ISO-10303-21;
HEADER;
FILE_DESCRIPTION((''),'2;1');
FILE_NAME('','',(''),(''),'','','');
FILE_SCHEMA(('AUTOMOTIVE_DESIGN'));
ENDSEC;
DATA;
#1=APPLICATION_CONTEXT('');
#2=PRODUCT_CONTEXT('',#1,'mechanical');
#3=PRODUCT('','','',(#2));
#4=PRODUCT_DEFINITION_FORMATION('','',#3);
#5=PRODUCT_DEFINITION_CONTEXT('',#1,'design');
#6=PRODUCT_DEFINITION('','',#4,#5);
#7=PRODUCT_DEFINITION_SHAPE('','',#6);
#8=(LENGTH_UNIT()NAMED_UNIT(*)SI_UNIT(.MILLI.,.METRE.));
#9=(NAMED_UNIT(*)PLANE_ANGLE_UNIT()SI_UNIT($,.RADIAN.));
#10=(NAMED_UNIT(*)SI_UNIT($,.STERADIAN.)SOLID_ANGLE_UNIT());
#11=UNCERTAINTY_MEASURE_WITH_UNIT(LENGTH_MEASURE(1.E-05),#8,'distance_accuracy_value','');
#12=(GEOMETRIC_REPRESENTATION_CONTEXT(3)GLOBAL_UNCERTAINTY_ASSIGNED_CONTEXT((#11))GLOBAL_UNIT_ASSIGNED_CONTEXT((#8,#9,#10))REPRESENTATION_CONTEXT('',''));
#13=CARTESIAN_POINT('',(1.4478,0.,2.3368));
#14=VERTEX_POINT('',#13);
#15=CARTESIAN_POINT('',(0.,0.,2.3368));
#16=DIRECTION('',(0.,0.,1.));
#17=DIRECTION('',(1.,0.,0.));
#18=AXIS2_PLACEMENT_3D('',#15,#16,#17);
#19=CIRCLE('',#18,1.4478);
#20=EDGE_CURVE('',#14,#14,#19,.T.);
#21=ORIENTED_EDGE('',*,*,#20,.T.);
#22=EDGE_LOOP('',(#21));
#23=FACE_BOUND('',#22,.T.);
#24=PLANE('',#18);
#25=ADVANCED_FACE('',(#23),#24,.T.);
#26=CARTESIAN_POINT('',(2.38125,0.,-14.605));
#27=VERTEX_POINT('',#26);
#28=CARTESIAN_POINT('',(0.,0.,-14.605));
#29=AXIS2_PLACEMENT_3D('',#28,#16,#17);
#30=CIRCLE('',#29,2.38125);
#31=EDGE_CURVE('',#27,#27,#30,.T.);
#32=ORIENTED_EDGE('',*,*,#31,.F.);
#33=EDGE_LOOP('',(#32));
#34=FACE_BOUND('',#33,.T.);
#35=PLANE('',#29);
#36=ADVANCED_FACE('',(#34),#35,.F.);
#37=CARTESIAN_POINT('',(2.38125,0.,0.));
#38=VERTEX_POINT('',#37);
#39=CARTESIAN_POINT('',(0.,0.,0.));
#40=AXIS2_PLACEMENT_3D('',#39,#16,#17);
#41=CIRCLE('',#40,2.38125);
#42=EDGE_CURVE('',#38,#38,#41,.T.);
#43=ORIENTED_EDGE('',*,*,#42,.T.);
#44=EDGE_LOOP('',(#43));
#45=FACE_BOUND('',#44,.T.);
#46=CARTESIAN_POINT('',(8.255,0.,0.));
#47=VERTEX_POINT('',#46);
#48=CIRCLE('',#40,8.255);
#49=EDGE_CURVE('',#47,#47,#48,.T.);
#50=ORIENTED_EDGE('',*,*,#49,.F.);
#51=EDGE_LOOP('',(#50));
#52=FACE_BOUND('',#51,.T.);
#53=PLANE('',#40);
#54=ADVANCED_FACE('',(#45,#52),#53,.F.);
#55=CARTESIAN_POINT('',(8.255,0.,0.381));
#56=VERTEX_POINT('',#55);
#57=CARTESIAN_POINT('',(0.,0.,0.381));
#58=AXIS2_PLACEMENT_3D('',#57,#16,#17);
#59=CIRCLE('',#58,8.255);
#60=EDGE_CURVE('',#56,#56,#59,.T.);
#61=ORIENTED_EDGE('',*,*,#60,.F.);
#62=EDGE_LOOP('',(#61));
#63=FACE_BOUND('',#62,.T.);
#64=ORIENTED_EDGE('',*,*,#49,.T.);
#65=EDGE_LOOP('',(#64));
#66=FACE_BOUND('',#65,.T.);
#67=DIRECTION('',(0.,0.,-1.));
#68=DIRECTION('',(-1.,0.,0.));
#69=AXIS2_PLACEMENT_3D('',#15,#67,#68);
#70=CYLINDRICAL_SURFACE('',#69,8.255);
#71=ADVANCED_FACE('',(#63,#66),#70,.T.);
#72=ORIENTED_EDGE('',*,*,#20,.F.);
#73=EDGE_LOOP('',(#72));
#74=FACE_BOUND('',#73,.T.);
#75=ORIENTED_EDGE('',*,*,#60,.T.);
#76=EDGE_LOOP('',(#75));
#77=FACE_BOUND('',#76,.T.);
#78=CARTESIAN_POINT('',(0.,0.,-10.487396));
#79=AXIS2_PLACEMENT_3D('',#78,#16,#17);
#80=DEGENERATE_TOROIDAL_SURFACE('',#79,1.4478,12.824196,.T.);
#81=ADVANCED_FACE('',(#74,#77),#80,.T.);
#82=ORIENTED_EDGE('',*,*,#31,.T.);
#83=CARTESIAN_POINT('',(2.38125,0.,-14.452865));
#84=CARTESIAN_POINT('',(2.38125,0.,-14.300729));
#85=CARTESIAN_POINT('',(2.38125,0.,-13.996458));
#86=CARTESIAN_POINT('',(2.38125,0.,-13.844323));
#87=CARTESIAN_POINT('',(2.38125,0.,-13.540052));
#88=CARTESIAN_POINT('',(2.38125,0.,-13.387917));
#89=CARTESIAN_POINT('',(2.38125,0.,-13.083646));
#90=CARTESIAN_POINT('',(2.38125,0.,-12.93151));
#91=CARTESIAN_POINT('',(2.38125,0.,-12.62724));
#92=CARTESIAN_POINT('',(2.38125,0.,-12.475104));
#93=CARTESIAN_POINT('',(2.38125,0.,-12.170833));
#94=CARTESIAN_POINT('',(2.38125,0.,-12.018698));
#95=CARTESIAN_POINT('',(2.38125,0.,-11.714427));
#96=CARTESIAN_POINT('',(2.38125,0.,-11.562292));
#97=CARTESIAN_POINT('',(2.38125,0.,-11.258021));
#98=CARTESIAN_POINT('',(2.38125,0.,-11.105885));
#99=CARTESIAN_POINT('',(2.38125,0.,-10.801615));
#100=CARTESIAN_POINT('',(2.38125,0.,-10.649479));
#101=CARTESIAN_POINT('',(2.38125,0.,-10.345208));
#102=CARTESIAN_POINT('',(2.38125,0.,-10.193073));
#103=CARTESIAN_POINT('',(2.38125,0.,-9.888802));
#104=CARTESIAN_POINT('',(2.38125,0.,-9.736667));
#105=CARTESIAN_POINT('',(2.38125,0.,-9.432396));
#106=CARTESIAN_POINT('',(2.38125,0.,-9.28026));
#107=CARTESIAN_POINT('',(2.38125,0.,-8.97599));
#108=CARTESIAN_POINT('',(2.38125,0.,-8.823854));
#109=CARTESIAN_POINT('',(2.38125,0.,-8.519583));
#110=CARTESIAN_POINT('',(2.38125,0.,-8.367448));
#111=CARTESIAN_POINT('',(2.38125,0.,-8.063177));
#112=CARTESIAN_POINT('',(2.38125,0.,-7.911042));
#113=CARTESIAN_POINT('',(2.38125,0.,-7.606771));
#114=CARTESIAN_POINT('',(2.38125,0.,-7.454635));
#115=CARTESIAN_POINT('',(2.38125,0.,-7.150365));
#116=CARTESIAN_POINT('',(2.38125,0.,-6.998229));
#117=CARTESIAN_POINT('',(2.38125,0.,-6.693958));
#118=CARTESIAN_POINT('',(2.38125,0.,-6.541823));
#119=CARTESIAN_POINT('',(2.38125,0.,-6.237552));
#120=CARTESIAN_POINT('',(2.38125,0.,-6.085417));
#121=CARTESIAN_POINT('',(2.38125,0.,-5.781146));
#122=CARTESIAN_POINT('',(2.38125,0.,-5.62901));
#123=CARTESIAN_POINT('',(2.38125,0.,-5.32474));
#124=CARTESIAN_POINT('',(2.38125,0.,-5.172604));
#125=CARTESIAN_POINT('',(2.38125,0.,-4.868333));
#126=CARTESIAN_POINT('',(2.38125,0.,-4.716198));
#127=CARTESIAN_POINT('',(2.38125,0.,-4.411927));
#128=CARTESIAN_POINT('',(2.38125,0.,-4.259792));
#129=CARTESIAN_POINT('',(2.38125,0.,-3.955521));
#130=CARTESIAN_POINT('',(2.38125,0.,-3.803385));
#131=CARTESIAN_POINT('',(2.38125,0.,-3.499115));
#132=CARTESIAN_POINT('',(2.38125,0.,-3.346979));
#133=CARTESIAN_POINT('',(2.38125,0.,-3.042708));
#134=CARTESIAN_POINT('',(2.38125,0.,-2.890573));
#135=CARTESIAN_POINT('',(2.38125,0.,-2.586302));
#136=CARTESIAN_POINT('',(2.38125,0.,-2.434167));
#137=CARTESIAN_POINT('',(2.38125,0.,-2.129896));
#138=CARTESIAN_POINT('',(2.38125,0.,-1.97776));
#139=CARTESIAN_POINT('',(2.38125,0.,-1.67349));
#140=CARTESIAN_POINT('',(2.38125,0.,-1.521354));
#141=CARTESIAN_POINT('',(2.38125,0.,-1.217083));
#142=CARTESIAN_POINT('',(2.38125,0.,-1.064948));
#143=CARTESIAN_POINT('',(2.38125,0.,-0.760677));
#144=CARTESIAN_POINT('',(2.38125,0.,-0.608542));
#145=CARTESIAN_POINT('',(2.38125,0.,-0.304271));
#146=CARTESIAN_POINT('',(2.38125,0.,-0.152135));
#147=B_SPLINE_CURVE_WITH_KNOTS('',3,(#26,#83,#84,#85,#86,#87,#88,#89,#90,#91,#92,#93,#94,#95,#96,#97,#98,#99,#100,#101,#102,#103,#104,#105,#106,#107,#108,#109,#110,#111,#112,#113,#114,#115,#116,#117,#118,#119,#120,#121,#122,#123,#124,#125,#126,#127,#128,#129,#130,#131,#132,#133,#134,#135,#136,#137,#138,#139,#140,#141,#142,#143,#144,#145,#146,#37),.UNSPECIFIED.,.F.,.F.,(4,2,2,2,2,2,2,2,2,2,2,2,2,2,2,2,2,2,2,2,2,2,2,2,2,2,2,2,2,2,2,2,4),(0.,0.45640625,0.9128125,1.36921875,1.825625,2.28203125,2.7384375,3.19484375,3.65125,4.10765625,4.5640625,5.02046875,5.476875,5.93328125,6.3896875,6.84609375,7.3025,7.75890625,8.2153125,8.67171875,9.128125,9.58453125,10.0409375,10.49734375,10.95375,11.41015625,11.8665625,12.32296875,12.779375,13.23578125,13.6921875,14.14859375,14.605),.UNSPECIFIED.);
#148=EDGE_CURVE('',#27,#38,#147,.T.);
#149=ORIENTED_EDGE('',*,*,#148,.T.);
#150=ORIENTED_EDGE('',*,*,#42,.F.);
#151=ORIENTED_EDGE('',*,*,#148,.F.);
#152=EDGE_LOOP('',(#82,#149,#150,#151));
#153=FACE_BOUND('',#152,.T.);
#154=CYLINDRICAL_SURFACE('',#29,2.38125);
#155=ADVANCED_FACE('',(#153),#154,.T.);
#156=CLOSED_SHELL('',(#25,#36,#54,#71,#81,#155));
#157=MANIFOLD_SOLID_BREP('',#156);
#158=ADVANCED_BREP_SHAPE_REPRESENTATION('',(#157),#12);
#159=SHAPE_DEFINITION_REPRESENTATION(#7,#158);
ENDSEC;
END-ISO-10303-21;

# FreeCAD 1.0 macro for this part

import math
import FreeCAD as App
import Part
import Sketcher

V = App.Vector
Q = App.Units.Quantity

doc = App.newDocument("Part")
body = doc.addObject("PartDesign::Body", "Body")

# Sketch on XY plane
sketch1 = body.newObject("Sketcher::SketchObject", "Sketch")
sketch1.AttachmentSupport = (doc.getObject("XY_Plane"), [""])
sketch1.MapMode = "FlatFace"
sketch1.addGeometry(Part.Circle(V(0, 0, 0), V(0, 0, 1), 8), False)
sketch1.addConstraint([
    Sketcher.Constraint("Coincident", 0, 3, -1, 1),
    Sketcher.Constraint("Diameter", 0, Q("0.65 in")),
])
pad1 = body.newObject("PartDesign::Pad", "Pad")
pad1.Profile = sketch1
pad1.Length = Q("0.092 in")

# Sketch on XY plane
sketch2 = body.newObject("Sketcher::SketchObject", "Sketch001")
sketch2.AttachmentSupport = (doc.getObject("XY_Plane"), [""])
sketch2.MapMode = "FlatFace"
sketch2.addGeometry(Part.Circle(V(0, 0, 0), V(0, 0, 1), 2.4), False)
sketch2.addConstraint([
    Sketcher.Constraint("Coincident", 0, 3, -1, 1),
    Sketcher.Constraint("Diameter", 0, Q("0.1875 in")),
])
pad2 = body.newObject("PartDesign::Pad", "Pad001")
pad2.Profile = sketch2
pad2.Length = Q("0.575 in")
pad2.Reversed = True

# Sketch on XZ plane
sketch3 = body.newObject("Sketcher::SketchObject", "Sketch002")
sketch3.AttachmentSupport = (doc.getObject("XZ_Plane"), [""])
sketch3.MapMode = "FlatFace"
sketch3.addGeometry([
    Part.ArcOfCircle(Part.Circle(V(1.4, -10.5, 0), V(0, 0, 1), 12.8), math.radians(58), math.radians(90)),
    Part.LineSegment(V(1.4, 2.3, 0), V(8.3, 2.3, 0)),
    Part.LineSegment(V(8.3, 2.3, 0), V(8.3, 0.4, 0)),
], False)
sketch3.addConstraint([
    Sketcher.Constraint("Tangent", 0, 2, 1, 1),
    Sketcher.Constraint("Coincident", 1, 2, 2, 1),
    Sketcher.Constraint("Coincident", 2, 2, 0, 1),
    Sketcher.Constraint("Horizontal", 1),
    Sketcher.Constraint("Vertical", 2),
    Sketcher.Constraint("DistanceX", 1, 1, 1, 2, Q("0.268 in")),
    Sketcher.Constraint("DistanceY", 2, 2, 2, 1, Q("0.077 in")),
    Sketcher.Constraint("DistanceX", -1, 1, 0, 3, Q("0.057 in")),
    Sketcher.Constraint("DistanceY", -1, 1, 0, 2, Q("0.092 in")),
])
groove = body.newObject("PartDesign::Groove", "Groove")
groove.Profile = sketch3
groove.ReferenceAxis = (sketch3, ["V_Axis"])
groove.Angle = 360

doc.recompute()
